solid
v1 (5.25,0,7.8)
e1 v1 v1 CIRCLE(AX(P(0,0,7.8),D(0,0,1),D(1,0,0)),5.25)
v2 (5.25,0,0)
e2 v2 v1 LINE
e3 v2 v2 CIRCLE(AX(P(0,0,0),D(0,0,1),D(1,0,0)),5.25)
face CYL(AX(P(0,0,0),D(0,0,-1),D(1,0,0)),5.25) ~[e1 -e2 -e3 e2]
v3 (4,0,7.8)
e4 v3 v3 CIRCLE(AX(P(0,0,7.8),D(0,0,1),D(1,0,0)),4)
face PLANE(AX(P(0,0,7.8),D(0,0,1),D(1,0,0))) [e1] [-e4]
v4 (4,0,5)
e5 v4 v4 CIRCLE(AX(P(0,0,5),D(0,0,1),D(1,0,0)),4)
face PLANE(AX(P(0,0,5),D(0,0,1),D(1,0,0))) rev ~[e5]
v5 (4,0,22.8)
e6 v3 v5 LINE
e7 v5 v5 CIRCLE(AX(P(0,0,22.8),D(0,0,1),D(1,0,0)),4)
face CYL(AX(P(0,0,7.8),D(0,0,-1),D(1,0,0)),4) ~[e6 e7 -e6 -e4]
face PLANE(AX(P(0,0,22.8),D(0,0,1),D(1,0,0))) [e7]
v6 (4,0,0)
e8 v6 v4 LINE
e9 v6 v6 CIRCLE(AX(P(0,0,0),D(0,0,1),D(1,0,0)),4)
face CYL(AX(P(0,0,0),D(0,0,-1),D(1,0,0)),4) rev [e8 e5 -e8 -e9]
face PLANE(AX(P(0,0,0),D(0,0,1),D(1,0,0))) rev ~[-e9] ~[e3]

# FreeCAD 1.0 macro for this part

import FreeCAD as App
import Part
import Sketcher
Q = App.Units.Quantity

doc = App.newDocument("Part")
params = doc.addObject("Spreadsheet::Sheet", "Params")
for row, (alias, value) in enumerate([
    ("sketch1_diameter", "10.5 mm"),
    ("pad1_length", "7.8 mm"),
    ("sketch2_diameter", "8 mm"),
    ("pocket1_length", "5 mm"),
    ("sketch3_diameter", "8 mm"),
    ("pad2_length", "15 mm"),
], start=1):
    params.set(f"A{row}", alias)
    params.set(f"B{row}", "=" + value)
    params.setAlias(f"B{row}", alias)

body = doc.addObject("PartDesign::Body", "Body")

# Sketch on XY plane
sketch1 = body.newObject("Sketcher::SketchObject", "Sketch")
sketch1.AttachmentSupport = (doc.getObject("XY_Plane"), [""])
sketch1.MapMode = "FlatFace"
sketch1.addGeometry(Part.Circle(App.Vector(0, 0, 0), App.Vector(0, 0, 1), 5.25), False)
sketch1.addConstraint([
    Sketcher.Constraint("Coincident", 0, 3, -1, 1),
    Sketcher.Constraint("Diameter", 0, Q("10.5 mm")),
])
sketch1.setExpression("Constraints[1]", "Params.sketch1_diameter")
pad1 = body.newObject("PartDesign::Pad", "Pad")
pad1.Profile = sketch1
pad1.setExpression("Length", "Params.pad1_length")

# Sketch on XY plane
sketch2 = body.newObject("Sketcher::SketchObject", "Sketch001")
sketch2.AttachmentSupport = (doc.getObject("XY_Plane"), [""])
sketch2.MapMode = "FlatFace"
sketch2.addGeometry(Part.Circle(App.Vector(0, 0, 0), App.Vector(0, 0, 1), 4), False)
sketch2.addConstraint([
    Sketcher.Constraint("Coincident", 0, 3, -1, 1),
    Sketcher.Constraint("Diameter", 0, Q("8 mm")),
])
sketch2.setExpression("Constraints[1]", "Params.sketch2_diameter")
pocket1 = body.newObject("PartDesign::Pocket", "Pocket")
pocket1.Profile = sketch2
pocket1.setExpression("Length", "Params.pocket1_length")
pocket1.Reversed = True

# Sketch on XY plane
sketch3 = body.newObject("Sketcher::SketchObject", "Sketch002")
sketch3.AttachmentSupport = (doc.getObject("XY_Plane"), [""])
sketch3.MapMode = "FlatFace"
sketch3.AttachmentOffset = App.Placement(App.Vector(0, 0, 7.8), App.Rotation())
sketch3.addGeometry(Part.Circle(App.Vector(0, 0, 0), App.Vector(0, 0, 1), 4), False)
sketch3.addConstraint([
    Sketcher.Constraint("Coincident", 0, 3, -1, 1),
    Sketcher.Constraint("Diameter", 0, Q("8 mm")),
])
sketch3.setExpression("Constraints[1]", "Params.sketch3_diameter")
pad2 = body.newObject("PartDesign::Pad", "Pad001")
pad2.Profile = sketch3
pad2.setExpression("Length", "Params.pad2_length")

doc.recompute()
